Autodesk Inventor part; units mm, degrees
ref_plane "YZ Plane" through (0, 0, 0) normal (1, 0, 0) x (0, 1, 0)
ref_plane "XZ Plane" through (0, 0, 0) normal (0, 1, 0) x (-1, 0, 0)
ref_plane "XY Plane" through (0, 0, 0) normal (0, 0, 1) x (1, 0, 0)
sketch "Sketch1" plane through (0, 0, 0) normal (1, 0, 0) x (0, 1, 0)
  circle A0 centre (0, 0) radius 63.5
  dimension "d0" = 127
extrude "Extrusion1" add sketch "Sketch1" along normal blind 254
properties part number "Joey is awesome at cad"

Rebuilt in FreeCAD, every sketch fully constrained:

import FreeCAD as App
import Part
import Sketcher
from FreeCAD import Vector
Q = App.Units.Quantity

doc = App.newDocument("Part")
body = doc.addObject("PartDesign::Body", "Body")

# Sketch on YZ plane
sketch1 = doc.addObject("Sketcher::SketchObject", "Sketch")
body.addObject(sketch1)
sketch1.AttachmentSupport = (doc.YZ_Plane, [""])
sketch1.MapMode = "FlatFace"
sketch1.addGeometry(Part.Circle(Vector(0, 0, 0), Vector(0, 0, 1), 64), False)
sketch1.addConstraint(Sketcher.Constraint("Coincident", 0, 3, -1, 1))
sketch1.addConstraint(Sketcher.Constraint("Diameter", 0, Q("5 in")))
pad1 = doc.addObject("PartDesign::Pad", "Pad")
body.addObject(pad1)
pad1.Profile = sketch1
pad1.Length = Q("10 in")

doc.recompute()
